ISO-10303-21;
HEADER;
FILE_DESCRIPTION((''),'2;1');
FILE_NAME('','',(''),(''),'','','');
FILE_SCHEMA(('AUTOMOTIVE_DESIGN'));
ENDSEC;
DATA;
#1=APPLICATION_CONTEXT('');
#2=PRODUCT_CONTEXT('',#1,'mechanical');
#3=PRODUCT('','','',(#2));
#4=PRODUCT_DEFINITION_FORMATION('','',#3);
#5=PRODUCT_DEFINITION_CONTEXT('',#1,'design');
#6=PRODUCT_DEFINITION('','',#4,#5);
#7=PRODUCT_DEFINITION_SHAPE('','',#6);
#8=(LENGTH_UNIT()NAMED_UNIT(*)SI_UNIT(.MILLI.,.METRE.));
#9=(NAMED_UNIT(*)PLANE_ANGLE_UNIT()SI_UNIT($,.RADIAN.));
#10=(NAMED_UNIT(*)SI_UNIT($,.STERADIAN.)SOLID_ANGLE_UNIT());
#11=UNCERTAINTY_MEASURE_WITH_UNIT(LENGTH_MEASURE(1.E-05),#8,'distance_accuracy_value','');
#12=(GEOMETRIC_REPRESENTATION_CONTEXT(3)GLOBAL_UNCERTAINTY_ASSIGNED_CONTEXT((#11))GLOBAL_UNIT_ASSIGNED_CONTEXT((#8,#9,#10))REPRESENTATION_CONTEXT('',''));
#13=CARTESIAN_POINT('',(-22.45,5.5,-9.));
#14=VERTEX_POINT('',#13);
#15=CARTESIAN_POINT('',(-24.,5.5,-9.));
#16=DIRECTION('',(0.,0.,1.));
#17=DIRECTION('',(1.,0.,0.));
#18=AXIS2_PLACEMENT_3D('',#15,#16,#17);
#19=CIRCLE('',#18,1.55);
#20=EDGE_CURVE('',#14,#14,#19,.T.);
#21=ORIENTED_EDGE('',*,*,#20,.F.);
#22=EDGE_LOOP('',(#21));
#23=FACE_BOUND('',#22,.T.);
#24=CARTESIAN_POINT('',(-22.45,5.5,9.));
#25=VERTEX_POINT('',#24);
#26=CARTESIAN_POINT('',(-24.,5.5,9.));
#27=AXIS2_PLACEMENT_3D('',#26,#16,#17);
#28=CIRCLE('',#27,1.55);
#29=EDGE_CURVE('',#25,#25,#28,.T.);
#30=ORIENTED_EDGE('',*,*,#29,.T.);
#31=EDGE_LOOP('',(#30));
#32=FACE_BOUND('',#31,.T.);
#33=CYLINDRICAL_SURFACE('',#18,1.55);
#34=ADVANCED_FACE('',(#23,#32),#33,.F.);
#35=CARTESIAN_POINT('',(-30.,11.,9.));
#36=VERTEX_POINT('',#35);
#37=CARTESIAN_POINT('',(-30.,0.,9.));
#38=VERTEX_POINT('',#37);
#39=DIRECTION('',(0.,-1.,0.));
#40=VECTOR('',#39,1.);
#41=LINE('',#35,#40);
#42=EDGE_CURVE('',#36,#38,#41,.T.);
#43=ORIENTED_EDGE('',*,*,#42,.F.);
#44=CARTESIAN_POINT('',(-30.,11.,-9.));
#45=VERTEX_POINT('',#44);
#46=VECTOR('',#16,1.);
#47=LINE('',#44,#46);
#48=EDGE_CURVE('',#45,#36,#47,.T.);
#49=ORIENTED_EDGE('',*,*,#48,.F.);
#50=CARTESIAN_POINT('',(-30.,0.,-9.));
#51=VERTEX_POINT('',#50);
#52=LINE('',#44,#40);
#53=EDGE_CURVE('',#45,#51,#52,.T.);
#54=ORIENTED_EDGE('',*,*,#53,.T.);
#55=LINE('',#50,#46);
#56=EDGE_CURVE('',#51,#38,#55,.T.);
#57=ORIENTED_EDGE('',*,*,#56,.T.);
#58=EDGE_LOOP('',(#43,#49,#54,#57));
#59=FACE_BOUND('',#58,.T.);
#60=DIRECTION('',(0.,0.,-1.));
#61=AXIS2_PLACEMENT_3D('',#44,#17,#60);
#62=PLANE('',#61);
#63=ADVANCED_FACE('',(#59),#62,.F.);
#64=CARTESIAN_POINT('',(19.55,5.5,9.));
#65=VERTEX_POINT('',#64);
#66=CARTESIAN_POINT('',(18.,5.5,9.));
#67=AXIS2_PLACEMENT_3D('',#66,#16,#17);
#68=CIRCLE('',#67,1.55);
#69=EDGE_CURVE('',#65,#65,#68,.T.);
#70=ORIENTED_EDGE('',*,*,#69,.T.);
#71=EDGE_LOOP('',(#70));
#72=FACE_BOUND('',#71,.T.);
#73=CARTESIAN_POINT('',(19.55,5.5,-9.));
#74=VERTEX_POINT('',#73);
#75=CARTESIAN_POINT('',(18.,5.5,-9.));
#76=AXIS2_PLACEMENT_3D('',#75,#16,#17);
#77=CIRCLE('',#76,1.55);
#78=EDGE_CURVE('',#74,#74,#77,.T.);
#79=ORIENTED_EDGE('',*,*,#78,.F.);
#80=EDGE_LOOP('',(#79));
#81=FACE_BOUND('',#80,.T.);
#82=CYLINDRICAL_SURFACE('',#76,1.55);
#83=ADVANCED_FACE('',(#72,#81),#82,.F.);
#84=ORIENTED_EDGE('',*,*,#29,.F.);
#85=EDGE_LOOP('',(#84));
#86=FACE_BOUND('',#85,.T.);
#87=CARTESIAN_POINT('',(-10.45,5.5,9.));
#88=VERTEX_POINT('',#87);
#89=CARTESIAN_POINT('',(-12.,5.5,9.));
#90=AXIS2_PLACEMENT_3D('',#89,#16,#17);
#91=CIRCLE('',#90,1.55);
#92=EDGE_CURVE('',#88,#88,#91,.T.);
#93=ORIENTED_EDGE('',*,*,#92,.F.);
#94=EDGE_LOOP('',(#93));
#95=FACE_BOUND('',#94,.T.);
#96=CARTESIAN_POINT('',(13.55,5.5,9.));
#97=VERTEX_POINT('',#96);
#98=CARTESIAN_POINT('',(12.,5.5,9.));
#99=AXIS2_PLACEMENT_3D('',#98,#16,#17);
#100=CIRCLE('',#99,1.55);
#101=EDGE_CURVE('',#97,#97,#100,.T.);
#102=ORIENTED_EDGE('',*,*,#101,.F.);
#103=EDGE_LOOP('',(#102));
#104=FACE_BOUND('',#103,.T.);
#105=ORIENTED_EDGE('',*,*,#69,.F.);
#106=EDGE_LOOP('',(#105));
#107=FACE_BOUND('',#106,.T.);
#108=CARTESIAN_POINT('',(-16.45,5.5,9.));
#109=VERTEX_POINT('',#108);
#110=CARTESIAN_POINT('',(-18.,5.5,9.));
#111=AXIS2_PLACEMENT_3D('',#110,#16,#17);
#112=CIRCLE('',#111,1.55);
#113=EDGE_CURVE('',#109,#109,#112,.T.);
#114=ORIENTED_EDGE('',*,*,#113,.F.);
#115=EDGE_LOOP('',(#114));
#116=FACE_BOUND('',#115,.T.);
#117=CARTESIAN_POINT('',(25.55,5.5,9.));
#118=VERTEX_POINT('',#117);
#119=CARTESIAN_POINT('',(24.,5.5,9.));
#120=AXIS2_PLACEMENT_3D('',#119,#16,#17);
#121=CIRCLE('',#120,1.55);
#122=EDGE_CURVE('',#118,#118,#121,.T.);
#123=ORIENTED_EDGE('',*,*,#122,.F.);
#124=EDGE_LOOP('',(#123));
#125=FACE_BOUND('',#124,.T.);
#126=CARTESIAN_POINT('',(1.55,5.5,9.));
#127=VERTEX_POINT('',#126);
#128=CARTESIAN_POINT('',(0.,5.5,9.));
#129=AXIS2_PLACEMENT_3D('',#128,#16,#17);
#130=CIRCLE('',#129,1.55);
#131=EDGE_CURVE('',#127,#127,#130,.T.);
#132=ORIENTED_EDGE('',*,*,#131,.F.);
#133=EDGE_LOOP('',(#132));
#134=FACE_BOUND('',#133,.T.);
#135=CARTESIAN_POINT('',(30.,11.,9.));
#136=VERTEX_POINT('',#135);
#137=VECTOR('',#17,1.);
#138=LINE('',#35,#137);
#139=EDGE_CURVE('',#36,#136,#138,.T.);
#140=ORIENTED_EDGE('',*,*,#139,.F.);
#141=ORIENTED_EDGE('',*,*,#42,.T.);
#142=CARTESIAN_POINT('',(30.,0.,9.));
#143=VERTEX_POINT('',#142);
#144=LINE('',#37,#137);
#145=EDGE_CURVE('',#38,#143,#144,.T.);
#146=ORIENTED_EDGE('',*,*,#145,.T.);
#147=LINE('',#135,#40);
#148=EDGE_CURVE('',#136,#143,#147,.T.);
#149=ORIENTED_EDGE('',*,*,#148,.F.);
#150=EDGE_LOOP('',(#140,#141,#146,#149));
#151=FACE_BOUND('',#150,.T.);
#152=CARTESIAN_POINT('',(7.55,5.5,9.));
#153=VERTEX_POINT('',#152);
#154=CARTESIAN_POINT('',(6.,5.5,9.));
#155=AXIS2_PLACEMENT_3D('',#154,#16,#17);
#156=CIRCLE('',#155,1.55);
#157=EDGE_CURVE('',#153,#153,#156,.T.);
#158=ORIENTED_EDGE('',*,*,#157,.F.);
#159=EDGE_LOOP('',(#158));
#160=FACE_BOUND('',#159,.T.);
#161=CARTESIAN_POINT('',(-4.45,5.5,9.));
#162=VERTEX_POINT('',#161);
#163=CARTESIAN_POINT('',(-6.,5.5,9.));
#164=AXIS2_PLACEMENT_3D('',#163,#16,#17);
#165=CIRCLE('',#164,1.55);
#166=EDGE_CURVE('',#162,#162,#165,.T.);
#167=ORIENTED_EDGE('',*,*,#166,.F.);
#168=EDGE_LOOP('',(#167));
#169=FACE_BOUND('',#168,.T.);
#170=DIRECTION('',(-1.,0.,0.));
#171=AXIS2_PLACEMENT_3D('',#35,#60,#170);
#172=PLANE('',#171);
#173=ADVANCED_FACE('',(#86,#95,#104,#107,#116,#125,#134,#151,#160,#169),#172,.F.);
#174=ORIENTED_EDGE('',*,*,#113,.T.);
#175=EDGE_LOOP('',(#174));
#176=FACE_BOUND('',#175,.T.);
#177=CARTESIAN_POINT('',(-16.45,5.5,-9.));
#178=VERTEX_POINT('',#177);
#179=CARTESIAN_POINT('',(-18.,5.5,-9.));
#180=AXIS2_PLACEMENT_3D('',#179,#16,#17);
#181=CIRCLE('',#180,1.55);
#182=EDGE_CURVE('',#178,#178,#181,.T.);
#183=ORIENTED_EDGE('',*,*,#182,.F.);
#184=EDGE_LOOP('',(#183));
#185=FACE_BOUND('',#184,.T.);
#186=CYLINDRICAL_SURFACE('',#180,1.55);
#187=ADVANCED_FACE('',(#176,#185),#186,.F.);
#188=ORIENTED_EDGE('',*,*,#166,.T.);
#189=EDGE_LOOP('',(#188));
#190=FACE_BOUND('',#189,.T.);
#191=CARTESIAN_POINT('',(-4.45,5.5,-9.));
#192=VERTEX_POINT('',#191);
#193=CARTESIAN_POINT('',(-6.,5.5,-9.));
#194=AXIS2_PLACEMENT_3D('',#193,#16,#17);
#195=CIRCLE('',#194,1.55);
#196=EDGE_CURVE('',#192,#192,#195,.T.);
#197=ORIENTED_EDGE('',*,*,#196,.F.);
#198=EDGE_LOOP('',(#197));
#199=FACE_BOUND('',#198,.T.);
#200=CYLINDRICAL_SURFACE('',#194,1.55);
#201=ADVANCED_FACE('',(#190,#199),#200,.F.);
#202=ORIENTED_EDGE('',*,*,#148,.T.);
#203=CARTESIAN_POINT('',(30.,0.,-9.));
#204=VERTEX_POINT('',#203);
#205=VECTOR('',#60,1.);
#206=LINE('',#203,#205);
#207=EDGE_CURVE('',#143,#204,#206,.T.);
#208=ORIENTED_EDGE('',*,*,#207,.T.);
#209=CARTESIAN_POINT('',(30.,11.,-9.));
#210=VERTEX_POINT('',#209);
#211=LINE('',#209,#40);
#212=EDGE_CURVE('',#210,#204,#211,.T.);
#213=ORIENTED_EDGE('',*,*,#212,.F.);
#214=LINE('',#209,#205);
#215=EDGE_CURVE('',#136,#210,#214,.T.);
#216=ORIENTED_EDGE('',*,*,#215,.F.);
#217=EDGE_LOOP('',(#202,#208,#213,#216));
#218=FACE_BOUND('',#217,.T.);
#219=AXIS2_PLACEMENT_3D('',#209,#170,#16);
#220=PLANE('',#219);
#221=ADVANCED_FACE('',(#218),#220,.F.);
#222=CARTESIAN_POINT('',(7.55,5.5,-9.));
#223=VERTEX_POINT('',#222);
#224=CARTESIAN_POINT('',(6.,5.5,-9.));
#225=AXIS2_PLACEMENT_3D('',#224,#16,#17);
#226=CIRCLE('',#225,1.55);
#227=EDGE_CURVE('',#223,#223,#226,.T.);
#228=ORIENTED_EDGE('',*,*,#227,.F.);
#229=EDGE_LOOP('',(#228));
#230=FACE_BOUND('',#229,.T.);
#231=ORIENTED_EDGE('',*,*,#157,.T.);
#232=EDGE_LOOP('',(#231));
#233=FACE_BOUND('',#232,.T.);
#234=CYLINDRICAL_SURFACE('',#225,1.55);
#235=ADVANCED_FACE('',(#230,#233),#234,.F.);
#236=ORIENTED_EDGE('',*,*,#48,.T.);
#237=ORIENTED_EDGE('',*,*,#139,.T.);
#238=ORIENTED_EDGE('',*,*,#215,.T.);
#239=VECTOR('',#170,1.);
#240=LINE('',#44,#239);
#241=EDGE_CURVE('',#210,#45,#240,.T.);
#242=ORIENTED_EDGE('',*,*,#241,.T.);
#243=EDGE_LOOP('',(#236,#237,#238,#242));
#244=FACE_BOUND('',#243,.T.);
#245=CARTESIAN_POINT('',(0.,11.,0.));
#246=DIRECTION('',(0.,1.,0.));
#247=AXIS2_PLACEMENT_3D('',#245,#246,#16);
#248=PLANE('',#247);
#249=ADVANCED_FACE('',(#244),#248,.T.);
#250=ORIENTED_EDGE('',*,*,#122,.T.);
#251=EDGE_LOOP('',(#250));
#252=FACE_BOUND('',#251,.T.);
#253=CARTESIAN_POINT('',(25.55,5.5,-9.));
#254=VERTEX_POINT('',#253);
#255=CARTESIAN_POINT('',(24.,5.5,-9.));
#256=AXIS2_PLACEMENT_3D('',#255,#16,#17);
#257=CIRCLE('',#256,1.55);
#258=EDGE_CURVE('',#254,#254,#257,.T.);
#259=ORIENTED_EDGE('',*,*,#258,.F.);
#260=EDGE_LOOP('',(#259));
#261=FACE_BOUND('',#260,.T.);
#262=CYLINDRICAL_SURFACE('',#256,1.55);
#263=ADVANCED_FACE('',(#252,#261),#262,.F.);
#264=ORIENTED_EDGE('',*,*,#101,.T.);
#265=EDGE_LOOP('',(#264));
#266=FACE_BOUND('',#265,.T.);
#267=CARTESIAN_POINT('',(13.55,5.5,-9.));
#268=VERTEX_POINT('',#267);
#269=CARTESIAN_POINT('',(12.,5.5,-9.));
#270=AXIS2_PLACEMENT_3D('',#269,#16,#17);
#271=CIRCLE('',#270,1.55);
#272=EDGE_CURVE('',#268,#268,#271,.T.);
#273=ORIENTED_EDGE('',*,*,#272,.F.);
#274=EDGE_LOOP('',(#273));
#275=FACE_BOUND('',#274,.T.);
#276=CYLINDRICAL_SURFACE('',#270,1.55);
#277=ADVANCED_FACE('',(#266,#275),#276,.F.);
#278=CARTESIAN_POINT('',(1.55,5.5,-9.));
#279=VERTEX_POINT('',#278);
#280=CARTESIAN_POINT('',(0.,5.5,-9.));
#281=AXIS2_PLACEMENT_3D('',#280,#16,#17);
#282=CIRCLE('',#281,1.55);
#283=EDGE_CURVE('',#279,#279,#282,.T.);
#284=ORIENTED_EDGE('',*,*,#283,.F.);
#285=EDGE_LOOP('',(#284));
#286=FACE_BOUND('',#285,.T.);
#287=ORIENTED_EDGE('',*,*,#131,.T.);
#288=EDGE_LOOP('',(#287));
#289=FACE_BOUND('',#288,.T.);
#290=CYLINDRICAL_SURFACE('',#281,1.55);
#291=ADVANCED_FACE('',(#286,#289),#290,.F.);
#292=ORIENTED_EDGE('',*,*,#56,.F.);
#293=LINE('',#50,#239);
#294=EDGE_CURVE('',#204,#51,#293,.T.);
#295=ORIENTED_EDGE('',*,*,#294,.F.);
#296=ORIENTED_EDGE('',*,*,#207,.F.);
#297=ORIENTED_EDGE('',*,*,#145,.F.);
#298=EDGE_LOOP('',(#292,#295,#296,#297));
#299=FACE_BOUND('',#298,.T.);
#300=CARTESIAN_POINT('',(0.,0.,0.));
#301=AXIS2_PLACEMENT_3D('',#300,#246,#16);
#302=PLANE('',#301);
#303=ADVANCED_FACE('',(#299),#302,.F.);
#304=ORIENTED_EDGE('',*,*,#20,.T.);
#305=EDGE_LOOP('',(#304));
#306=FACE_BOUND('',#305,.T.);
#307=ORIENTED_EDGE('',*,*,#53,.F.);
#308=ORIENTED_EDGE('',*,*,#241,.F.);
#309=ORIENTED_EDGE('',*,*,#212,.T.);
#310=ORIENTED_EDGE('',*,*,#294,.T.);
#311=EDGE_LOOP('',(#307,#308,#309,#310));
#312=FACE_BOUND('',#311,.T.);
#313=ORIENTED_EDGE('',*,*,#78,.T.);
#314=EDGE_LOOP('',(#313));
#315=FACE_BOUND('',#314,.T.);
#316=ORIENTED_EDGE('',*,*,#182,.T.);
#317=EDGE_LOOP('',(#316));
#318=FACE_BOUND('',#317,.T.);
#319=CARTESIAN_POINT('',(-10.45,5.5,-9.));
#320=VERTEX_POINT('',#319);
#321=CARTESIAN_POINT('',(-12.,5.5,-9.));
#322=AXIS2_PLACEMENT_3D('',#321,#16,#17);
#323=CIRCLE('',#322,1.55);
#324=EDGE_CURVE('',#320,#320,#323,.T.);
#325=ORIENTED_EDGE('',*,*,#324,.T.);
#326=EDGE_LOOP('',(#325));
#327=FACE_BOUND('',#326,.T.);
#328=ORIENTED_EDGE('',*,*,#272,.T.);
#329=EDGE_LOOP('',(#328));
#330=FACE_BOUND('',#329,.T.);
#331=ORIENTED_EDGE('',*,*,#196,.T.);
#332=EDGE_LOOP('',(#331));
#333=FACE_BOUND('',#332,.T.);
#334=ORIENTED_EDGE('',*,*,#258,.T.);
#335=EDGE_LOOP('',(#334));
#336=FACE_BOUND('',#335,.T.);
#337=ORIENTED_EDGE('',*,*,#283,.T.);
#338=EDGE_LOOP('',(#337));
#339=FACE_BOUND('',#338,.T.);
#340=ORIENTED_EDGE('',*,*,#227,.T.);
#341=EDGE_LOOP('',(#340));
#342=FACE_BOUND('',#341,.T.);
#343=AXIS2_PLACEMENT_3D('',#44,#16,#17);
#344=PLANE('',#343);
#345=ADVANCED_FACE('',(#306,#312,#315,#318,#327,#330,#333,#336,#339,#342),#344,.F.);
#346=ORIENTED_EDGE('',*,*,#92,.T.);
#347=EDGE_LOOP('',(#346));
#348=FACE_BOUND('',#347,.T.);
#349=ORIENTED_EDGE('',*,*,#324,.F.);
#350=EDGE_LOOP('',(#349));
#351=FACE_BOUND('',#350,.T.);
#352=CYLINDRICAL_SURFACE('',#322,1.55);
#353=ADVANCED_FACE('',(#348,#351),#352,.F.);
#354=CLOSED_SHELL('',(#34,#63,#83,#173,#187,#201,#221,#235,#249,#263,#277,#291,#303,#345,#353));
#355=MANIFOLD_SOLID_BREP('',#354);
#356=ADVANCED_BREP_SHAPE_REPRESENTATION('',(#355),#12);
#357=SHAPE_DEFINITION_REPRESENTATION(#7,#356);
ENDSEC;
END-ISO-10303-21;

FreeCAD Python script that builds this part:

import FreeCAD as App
import Part
import Sketcher

V = App.Vector


def add_polygon(sketch, points):
    """Adds a closed chain of lines whose ends are joined by coincident constraints."""
    first, n = sketch.GeometryCount, len(points)
    for a, b in zip(points, points[1:] + points[:1]):
        sketch.addGeometry(Part.LineSegment(App.Vector(*a, 0), App.Vector(*b, 0)), False)
    for i in range(n):
        sketch.addConstraint(Sketcher.Constraint("Coincident", first + i, 2, first + (i + 1) % n, 1))

doc = App.newDocument("Part")
body = doc.addObject("PartDesign::Body", "Body")

# Sketch on XZ plane
sketch1 = body.newObject("Sketcher::SketchObject", "Sketch")
sketch1.AttachmentSupport = (doc.getObject("XZ_Plane"), [""])
sketch1.MapMode = "FlatFace"
add_polygon(sketch1, [(-30, -9), (-30, 9), (30, 9), (30, -9)])  # lines 0-3
sketch1.addConstraint(Sketcher.Constraint("Vertical", 0))
sketch1.addConstraint(Sketcher.Constraint("Horizontal", 1))
sketch1.addConstraint(Sketcher.Constraint("Vertical", 2))
sketch1.addConstraint(Sketcher.Constraint("Horizontal", 3))
sketch1.addConstraint(Sketcher.Constraint("Symmetric", 0, 2, 2, 2, -1, 1))
sketch1.addConstraint(Sketcher.Constraint("DistanceX", 1, 1, 1, 2, 60.0))
sketch1.addConstraint(Sketcher.Constraint("DistanceY", 0, 1, 0, 2, 18.0))
pad1 = body.newObject("PartDesign::Pad", "Pad")
pad1.Profile = sketch1
pad1.Length = 11
pad1.Reversed = True

# Sketch on XY plane
sketch2 = body.newObject("Sketcher::SketchObject", "Sketch001")
sketch2.AttachmentSupport = (doc.getObject("XY_Plane"), [""])
sketch2.MapMode = "FlatFace"
sketch2.AttachmentOffset = App.Placement(V(0, 0, 9), App.Rotation())
sketch2.addGeometry(Part.Circle(V(-24, 5.5, 0), V(0, 0, 1), 1.55), False)
sketch2.addGeometry(Part.Circle(V(-18, 5.5, 0), V(0, 0, 1), 1.55), False)
sketch2.addGeometry(Part.Circle(V(-12, 5.5, 0), V(0, 0, 1), 1.55), False)
sketch2.addGeometry(Part.Circle(V(-6, 5.5, 0), V(0, 0, 1), 1.55), False)
sketch2.addGeometry(Part.Circle(V(0, 5.5, 0), V(0, 0, 1), 1.55), False)
sketch2.addGeometry(Part.Circle(V(6, 5.5, 0), V(0, 0, 1), 1.55), False)
sketch2.addGeometry(Part.Circle(V(12, 5.5, 0), V(0, 0, 1), 1.55), False)
sketch2.addGeometry(Part.Circle(V(18, 5.5, 0), V(0, 0, 1), 1.55), False)
sketch2.addGeometry(Part.Circle(V(24, 5.5, 0), V(0, 0, 1), 1.55), False)
sketch2.addConstraint(Sketcher.Constraint("Equal", 0, 1))
sketch2.addConstraint(Sketcher.Constraint("Equal", 1, 2))
sketch2.addConstraint(Sketcher.Constraint("Equal", 2, 3))
sketch2.addConstraint(Sketcher.Constraint("Equal", 3, 4))
sketch2.addConstraint(Sketcher.Constraint("Equal", 4, 5))
sketch2.addConstraint(Sketcher.Constraint("Equal", 5, 6))
sketch2.addConstraint(Sketcher.Constraint("Equal", 6, 7))
sketch2.addConstraint(Sketcher.Constraint("Equal", 7, 8))
sketch2.addConstraint(Sketcher.Constraint("Symmetric", 3, 3, 5, 3, -2))
sketch2.addConstraint(Sketcher.Constraint("Symmetric", 2, 3, 6, 3, -2))
sketch2.addConstraint(Sketcher.Constraint("Symmetric", 1, 3, 7, 3, -2))
sketch2.addConstraint(Sketcher.Constraint("Symmetric", 0, 3, 8, 3, -2))
sketch2.addConstraint(Sketcher.Constraint("PointOnObject", 4, 3, -2))
sketch2.addConstraint(Sketcher.Constraint("Horizontal", 0, 3, 1, 3))
sketch2.addConstraint(Sketcher.Constraint("Horizontal", 1, 3, 2, 3))
sketch2.addConstraint(Sketcher.Constraint("Horizontal", 2, 3, 3, 3))
sketch2.addConstraint(Sketcher.Constraint("Horizontal", 3, 3, 4, 3))
sketch2.addConstraint(Sketcher.Constraint("Diameter", 0, 3.1))
sketch2.addConstraint(Sketcher.Constraint("DistanceX", 0, 3, -1, 1, 24.0))
sketch2.addConstraint(Sketcher.Constraint("DistanceX", 1, 3, -1, 1, 18.0))
sketch2.addConstraint(Sketcher.Constraint("DistanceX", 2, 3, -1, 1, 12.0))
sketch2.addConstraint(Sketcher.Constraint("DistanceX", 3, 3, -1, 1, 6.0))
sketch2.addConstraint(Sketcher.Constraint("DistanceY", -1, 1, 0, 3, 5.5))
pocket1 = body.newObject("PartDesign::Pocket", "Pocket")
pocket1.Profile = sketch2
pocket1.Type = "ThroughAll"

doc.recompute()
